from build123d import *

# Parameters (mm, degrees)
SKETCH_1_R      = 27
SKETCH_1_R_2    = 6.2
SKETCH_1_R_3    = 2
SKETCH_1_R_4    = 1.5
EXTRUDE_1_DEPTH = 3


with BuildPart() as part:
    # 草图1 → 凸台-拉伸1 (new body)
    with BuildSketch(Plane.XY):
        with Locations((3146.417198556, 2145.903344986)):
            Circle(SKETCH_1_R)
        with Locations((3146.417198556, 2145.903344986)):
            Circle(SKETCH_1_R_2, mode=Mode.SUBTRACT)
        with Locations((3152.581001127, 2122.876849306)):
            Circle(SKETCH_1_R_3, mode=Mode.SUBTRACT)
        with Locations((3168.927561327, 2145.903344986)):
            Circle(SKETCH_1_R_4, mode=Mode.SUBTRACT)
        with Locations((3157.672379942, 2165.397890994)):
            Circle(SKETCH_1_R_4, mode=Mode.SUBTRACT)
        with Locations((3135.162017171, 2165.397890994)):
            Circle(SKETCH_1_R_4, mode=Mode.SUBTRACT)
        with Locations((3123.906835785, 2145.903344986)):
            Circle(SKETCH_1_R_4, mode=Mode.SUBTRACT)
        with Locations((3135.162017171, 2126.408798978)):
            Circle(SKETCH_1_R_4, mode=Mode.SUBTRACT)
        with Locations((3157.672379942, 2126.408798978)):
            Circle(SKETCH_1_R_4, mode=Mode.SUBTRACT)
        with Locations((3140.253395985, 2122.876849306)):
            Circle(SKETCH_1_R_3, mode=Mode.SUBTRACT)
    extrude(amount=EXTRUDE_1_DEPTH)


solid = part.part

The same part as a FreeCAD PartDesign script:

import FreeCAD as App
import Part
import Sketcher
Q = App.Units.Quantity

doc = App.newDocument("Part")
params = doc.addObject("Spreadsheet::Sheet", "Params")
for row, (alias, value) in enumerate([
    ("sketch1_diameter", "54 mm"),
    ("sketch1_diameter2", "4 mm"),
    ("sketch1_diameter3", "3 mm"),
    ("sketch1_diameter4", "12.4 mm"),
    ("pad1_length", "3 mm"),
], start=1):
    params.set(f"A{row}", alias)
    params.set(f"B{row}", "=" + value)
    params.setAlias(f"B{row}", alias)

body = doc.addObject("PartDesign::Body", "Body")

# Sketch on XY plane
sketch1 = body.newObject("Sketcher::SketchObject", "Sketch")
sketch1.AttachmentSupport = (doc.getObject("XY_Plane"), [""])
sketch1.MapMode = "FlatFace"
sketch1.addGeometry(Part.Circle(App.Vector(3146.417199, 2145.903345, 0), App.Vector(0, 0, 1), 27), False)
sketch1.addGeometry(Part.Circle(App.Vector(3140.253396, 2122.876849, 0), App.Vector(0, 0, 1), 2), False)
sketch1.addGeometry(Part.Circle(App.Vector(3135.162017, 2126.408799, 0), App.Vector(0, 0, 1), 1.5), False)
sketch1.addGeometry(Part.Circle(App.Vector(3152.581001, 2122.876849, 0), App.Vector(0, 0, 1), 2), False)
sketch1.addGeometry(Part.Circle(App.Vector(3157.67238, 2126.408799, 0), App.Vector(0, 0, 1), 1.5), False)
sketch1.addGeometry(Part.Circle(App.Vector(3123.906836, 2145.903345, 0), App.Vector(0, 0, 1), 1.5), False)
sketch1.addGeometry(Part.Circle(App.Vector(3135.162017, 2165.397891, 0), App.Vector(0, 0, 1), 1.5), False)
sketch1.addGeometry(Part.Circle(App.Vector(3146.417199, 2145.903345, 0), App.Vector(0, 0, 1), 6.2), False)
sketch1.addGeometry(Part.Circle(App.Vector(3168.927561, 2145.903345, 0), App.Vector(0, 0, 1), 1.5), False)
sketch1.addGeometry(Part.Circle(App.Vector(3157.67238, 2165.397891, 0), App.Vector(0, 0, 1), 1.5), False)
sketch1.addConstraint(Sketcher.Constraint("Coincident", 7, 3, 0, 3))
sketch1.addConstraint(Sketcher.Constraint("Equal", 1, 3))
sketch1.addConstraint(Sketcher.Constraint("Equal", 2, 4))
sketch1.addConstraint(Sketcher.Constraint("Equal", 4, 5))
sketch1.addConstraint(Sketcher.Constraint("Equal", 5, 6))
sketch1.addConstraint(Sketcher.Constraint("Equal", 6, 8))
sketch1.addConstraint(Sketcher.Constraint("Equal", 8, 9))
sketch1.addConstraint(Sketcher.Constraint("Horizontal", 1, 3, 3, 3))
sketch1.addConstraint(Sketcher.Constraint("Horizontal", 2, 3, 4, 3))
sketch1.addConstraint(Sketcher.Constraint("Horizontal", 0, 3, 5, 3))
sketch1.addConstraint(Sketcher.Constraint("Horizontal", 7, 3, 8, 3))
sketch1.addConstraint(Sketcher.Constraint("Horizontal", 6, 3, 9, 3))
sketch1.addConstraint(Sketcher.Constraint("Vertical", 2, 3, 6, 3))
sketch1.addConstraint(Sketcher.Constraint("Vertical", 4, 3, 9, 3))
sketch1.addConstraint(Sketcher.Constraint("Diameter", 0, Q("54 mm")))
sketch1.addConstraint(Sketcher.Constraint("Diameter", 1, Q("4 mm")))
sketch1.addConstraint(Sketcher.Constraint("Diameter", 2, Q("3 mm")))
sketch1.addConstraint(Sketcher.Constraint("Diameter", 7, Q("12.4 mm")))
sketch1.addConstraint(Sketcher.Constraint("DistanceX", -1, 1, 3, 3, Q("3152.581001 mm")))
sketch1.addConstraint(Sketcher.Constraint("DistanceX", -1, 1, 0, 3, Q("3146.417199 mm")))
sketch1.addConstraint(Sketcher.Constraint("DistanceY", -1, 1, 2, 3, Q("2126.408799 mm")))
sketch1.addConstraint(Sketcher.Constraint("DistanceY", -1, 1, 1, 3, Q("2122.876849 mm")))
sketch1.addConstraint(Sketcher.Constraint("DistanceX", -1, 1, 4, 3, Q("3157.67238 mm")))
sketch1.addConstraint(Sketcher.Constraint("DistanceY", -1, 1, 6, 3, Q("2165.397891 mm")))
sketch1.addConstraint(Sketcher.Constraint("DistanceX", -1, 1, 8, 3, Q("3168.927561 mm")))
sketch1.addConstraint(Sketcher.Constraint("DistanceX", 2, 3, 1, 3, Q("5.091379 mm")))
sketch1.addConstraint(Sketcher.Constraint("DistanceX", 2, 3, 0, 3, Q("11.255181 mm")))
sketch1.addConstraint(Sketcher.Constraint("DistanceX", 5, 3, 2, 3, Q("11.255181 mm")))
sketch1.addConstraint(Sketcher.Constraint("DistanceY", -1, 1, 0, 3, Q("2145.903345 mm")))
sketch1.setExpression("Constraints[14]", "Params.sketch1_diameter")
sketch1.setExpression("Constraints[15]", "Params.sketch1_diameter2")
sketch1.setExpression("Constraints[16]", "Params.sketch1_diameter3")
sketch1.setExpression("Constraints[17]", "Params.sketch1_diameter4")
pad1 = body.newObject("PartDesign::Pad", "Pad")
pad1.Profile = sketch1
pad1.setExpression("Length", "Params.pad1_length")

doc.recompute()
